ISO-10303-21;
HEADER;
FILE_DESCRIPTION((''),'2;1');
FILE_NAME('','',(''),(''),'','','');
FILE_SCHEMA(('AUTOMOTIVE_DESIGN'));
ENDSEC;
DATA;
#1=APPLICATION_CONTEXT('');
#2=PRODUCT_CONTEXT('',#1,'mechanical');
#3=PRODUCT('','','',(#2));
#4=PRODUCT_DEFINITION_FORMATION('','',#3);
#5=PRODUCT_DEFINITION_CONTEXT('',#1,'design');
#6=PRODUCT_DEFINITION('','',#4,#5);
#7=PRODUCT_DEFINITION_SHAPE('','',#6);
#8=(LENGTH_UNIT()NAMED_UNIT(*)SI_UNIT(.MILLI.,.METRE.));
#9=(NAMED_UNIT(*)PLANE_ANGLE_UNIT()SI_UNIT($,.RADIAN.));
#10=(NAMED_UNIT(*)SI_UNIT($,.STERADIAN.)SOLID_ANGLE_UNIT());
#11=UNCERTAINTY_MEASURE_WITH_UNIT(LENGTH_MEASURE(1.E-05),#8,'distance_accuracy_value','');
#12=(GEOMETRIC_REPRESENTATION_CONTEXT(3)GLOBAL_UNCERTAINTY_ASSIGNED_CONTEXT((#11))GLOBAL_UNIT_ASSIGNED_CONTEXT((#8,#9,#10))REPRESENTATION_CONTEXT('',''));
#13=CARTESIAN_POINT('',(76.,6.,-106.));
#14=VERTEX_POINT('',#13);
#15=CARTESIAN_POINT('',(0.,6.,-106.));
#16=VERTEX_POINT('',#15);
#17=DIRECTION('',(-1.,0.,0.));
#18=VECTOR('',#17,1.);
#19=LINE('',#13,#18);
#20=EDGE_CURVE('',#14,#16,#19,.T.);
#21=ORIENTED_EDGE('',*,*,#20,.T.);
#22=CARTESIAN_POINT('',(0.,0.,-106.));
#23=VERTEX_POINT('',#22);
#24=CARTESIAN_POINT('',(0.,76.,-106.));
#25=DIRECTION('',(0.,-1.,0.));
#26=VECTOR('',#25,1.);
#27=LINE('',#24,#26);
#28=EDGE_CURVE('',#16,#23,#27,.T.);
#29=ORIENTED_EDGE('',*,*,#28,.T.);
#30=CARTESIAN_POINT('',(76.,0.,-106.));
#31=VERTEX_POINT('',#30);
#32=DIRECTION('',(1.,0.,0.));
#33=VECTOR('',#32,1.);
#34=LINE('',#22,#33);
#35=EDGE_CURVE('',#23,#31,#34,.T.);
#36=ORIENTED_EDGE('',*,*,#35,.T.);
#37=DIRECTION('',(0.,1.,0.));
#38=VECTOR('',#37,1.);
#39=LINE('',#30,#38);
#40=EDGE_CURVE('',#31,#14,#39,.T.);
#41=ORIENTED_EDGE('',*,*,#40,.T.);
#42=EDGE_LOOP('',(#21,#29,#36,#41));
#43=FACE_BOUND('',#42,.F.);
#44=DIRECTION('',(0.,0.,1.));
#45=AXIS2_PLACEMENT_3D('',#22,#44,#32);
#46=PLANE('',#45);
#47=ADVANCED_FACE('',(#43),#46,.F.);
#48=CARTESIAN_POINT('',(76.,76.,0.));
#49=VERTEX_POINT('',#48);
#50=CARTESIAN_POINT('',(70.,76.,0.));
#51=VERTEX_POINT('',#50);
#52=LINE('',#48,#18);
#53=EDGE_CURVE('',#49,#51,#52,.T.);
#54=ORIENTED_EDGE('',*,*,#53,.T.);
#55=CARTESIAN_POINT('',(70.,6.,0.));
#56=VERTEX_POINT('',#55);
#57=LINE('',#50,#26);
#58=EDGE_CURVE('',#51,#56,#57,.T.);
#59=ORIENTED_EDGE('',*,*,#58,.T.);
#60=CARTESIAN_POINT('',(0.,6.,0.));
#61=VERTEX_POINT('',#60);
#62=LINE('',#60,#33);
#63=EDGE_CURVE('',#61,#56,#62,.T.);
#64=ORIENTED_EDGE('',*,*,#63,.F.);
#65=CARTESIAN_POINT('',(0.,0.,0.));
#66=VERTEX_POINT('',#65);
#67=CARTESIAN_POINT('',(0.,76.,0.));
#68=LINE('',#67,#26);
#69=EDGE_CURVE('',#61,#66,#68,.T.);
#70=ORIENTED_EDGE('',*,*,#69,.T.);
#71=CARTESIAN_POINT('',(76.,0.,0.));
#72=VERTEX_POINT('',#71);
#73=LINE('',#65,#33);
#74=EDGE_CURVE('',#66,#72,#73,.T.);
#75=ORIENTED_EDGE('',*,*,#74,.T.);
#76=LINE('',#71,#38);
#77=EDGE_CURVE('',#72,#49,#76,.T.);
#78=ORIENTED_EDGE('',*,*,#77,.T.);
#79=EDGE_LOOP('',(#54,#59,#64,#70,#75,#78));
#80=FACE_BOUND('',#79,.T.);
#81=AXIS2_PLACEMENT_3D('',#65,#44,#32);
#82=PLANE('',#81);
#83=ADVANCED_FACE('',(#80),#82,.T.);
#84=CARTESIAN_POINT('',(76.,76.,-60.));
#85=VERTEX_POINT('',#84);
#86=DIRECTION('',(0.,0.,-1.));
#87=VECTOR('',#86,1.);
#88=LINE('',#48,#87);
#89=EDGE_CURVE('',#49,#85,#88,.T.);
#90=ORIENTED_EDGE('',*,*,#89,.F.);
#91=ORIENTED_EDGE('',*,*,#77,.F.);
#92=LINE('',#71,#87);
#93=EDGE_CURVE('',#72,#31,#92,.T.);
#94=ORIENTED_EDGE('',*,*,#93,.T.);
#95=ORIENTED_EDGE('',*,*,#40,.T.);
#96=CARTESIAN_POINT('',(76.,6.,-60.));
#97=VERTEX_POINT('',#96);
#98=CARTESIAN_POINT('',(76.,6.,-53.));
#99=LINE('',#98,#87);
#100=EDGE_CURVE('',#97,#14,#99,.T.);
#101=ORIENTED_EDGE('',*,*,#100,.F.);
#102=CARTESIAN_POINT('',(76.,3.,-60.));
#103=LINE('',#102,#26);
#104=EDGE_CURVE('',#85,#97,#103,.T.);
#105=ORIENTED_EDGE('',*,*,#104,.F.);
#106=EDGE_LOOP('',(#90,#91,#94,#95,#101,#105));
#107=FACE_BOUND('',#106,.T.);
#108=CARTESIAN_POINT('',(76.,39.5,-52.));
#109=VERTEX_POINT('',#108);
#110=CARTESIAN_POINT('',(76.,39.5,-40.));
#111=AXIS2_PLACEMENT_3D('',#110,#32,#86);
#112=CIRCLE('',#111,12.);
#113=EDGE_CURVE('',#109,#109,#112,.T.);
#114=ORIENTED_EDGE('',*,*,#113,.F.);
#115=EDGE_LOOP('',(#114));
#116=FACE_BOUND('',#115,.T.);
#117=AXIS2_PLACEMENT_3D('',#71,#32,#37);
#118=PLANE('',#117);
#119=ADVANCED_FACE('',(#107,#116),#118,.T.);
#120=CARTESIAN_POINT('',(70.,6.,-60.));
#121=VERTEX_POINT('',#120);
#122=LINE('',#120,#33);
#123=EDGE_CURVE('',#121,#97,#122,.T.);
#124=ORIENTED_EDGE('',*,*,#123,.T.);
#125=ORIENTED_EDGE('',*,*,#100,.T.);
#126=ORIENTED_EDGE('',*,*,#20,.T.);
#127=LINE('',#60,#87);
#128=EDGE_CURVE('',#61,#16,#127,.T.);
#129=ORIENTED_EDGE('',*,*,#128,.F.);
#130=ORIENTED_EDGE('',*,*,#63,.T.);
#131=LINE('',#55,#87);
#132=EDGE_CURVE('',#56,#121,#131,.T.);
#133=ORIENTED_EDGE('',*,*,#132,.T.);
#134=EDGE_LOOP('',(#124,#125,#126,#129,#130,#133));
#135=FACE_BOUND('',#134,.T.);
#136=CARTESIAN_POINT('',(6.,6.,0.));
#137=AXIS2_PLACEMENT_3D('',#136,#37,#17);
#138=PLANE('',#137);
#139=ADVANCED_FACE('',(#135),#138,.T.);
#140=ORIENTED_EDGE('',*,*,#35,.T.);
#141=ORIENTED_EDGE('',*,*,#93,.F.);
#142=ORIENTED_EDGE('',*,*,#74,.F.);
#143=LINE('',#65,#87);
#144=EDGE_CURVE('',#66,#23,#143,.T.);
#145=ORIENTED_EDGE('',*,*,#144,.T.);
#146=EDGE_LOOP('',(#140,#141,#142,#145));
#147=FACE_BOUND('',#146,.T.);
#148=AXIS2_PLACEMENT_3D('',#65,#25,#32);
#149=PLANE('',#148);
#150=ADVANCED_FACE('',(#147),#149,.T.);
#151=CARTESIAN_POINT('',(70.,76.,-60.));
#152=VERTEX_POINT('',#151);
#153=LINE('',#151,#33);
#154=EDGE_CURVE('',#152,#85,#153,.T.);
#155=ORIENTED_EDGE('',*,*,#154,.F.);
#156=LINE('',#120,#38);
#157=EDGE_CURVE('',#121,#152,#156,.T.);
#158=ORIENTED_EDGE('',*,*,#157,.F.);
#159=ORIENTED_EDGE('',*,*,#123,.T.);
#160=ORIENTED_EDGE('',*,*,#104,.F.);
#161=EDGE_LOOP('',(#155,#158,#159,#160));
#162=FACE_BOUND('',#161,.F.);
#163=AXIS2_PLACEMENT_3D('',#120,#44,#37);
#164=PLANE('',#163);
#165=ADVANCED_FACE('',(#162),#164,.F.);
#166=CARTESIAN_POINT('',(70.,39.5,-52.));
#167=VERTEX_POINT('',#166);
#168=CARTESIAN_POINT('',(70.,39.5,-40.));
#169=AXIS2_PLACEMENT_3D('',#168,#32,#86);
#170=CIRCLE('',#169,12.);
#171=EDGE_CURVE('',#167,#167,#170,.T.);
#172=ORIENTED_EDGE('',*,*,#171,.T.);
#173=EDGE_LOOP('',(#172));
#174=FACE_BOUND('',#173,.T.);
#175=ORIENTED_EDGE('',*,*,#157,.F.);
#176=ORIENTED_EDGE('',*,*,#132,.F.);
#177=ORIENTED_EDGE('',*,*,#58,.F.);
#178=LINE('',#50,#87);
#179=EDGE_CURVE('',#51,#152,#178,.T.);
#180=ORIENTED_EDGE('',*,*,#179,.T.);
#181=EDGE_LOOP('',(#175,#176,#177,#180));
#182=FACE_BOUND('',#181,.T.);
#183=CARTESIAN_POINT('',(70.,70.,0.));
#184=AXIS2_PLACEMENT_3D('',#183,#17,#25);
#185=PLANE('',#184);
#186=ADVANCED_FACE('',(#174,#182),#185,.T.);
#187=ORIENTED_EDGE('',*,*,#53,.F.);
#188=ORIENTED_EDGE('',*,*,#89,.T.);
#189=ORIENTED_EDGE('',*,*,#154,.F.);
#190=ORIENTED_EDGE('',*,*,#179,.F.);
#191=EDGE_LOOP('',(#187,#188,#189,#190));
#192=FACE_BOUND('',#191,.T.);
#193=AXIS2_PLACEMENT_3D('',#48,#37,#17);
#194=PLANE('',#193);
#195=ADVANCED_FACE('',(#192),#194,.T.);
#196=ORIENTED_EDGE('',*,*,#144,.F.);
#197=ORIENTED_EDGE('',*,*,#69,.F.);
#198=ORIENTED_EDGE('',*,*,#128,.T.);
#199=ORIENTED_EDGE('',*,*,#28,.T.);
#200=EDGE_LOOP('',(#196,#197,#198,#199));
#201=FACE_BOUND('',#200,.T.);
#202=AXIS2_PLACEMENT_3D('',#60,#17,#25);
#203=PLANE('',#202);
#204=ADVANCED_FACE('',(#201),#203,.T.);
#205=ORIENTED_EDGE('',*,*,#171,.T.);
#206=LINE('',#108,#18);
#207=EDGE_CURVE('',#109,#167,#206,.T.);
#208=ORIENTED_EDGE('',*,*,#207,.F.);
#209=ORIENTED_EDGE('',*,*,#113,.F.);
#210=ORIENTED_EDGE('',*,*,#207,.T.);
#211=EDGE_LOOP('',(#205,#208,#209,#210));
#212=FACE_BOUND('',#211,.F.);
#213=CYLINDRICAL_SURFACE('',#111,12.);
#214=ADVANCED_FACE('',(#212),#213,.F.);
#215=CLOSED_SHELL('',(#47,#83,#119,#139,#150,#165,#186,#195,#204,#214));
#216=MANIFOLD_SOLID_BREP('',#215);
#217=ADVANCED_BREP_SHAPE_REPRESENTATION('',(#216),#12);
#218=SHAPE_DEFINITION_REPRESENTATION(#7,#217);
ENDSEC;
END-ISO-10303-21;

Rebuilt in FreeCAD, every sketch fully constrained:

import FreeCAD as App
import Part
import Sketcher

V = App.Vector
Q = App.Units.Quantity

doc = App.newDocument("Part")
body = doc.addObject("PartDesign::Body", "Body")

sketch1 = body.newObject("Sketcher::SketchObject", "Sketch")
sketch1.AttachmentSupport = (doc.getObject("XY_Plane"), [""])
sketch1.MapMode = "FlatFace"
sketch1.addGeometry([
    Part.LineSegment(V(0, 6, 0), V(0, 0, 0)),
    Part.LineSegment(V(0, 0, 0), V(76, 0, 0)),
    Part.LineSegment(V(76, 0, 0), V(76, 76, 0)),
    Part.LineSegment(V(76, 76, 0), V(70, 76, 0)),
    Part.LineSegment(V(70, 76, 0), V(70, 6, 0)),
    Part.LineSegment(V(70, 6, 0), V(0, 6, 0)),
], False)
sketch1.addConstraint([
    Sketcher.Constraint("Coincident", 0, 2, 1, 1),
    Sketcher.Constraint("Coincident", 1, 2, 2, 1),
    Sketcher.Constraint("Coincident", 2, 2, 3, 1),
    Sketcher.Constraint("Coincident", 3, 2, 4, 1),
    Sketcher.Constraint("Coincident", 4, 2, 5, 1),
    Sketcher.Constraint("Coincident", 5, 2, 0, 1),
    Sketcher.Constraint("Vertical", 0),
    Sketcher.Constraint("Horizontal", 1),
    Sketcher.Constraint("Vertical", 2),
    Sketcher.Constraint("Horizontal", 3),
    Sketcher.Constraint("Vertical", 4),
    Sketcher.Constraint("Horizontal", 5),
    Sketcher.Constraint("Coincident", 0, 2, -1, 1),
    Sketcher.Constraint("Equal", 3, 0),
    Sketcher.Constraint("Equal", 1, 2),
    Sketcher.Constraint("DistanceX", 1, 1, 1, 2, Q("76 mm")),
    Sketcher.Constraint("DistanceX", 3, 2, 3, 1, Q("6 mm")),
])
pad1 = body.newObject("PartDesign::Pad", "Pad")
pad1.Profile = sketch1
pad1.Length = 106
pad1.Reversed = True

sketch2 = body.newObject("Sketcher::SketchObject", "Sketch001")
sketch2.AttachmentSupport = (doc.getObject("YZ_Plane"), [""])
sketch2.MapMode = "FlatFace"
sketch2.AttachmentOffset = App.Placement(V(0, 0, 76), App.Rotation())
sketch2.addGeometry(Part.Circle(V(40, -40, 0), V(0, 0, 1), 12), False)
sketch2.addConstraint([
    Sketcher.Constraint("Diameter", 0, Q("24 mm")),
    Sketcher.Constraint("DistanceY", 0, 3, -1, 1, Q("40 mm")),
    Sketcher.Constraint("DistanceX", -1, 1, 0, 3, Q("39.5 mm")),
])
pocket1 = body.newObject("PartDesign::Pocket", "Pocket")
pocket1.Profile = sketch2
pocket1.Length = 76

sketch3 = body.newObject("Sketcher::SketchObject", "Sketch002")
sketch3.AttachmentSupport = (doc.getObject("YZ_Plane"), [""])
sketch3.MapMode = "FlatFace"
sketch3.AttachmentOffset = App.Placement(V(0, 0, 70), App.Rotation())
sketch3.addGeometry([
    Part.LineSegment(V(76, -106, 0), V(6, -106, 0)),
    Part.LineSegment(V(6, -106, 0), V(6, -60, 0)),
    Part.LineSegment(V(6, -60, 0), V(76, -60, 0)),
    Part.LineSegment(V(76, -60, 0), V(76, -106, 0)),
], False)
sketch3.addConstraint([
    Sketcher.Constraint("Coincident", 0, 2, 1, 1),
    Sketcher.Constraint("Coincident", 1, 2, 2, 1),
    Sketcher.Constraint("Coincident", 2, 2, 3, 1),
    Sketcher.Constraint("Coincident", 3, 2, 0, 1),
    Sketcher.Constraint("Horizontal", 0),
    Sketcher.Constraint("Vertical", 1),
    Sketcher.Constraint("Horizontal", 2),
    Sketcher.Constraint("Vertical", 3),
    Sketcher.Constraint("DistanceY", 1, 2, -1, 1, Q("60 mm")),
    Sketcher.Constraint("DistanceX", 0, 2, 0, 1, Q("70 mm")),
    Sketcher.Constraint("DistanceY", 1, 1, 1, 2, Q("46 mm")),
    Sketcher.Constraint("DistanceX", -1, 1, 0, 2, Q("6 mm")),
])
pocket2 = body.newObject("PartDesign::Pocket", "Pocket001")
pocket2.Profile = sketch3
pocket2.Length = 10
pocket2.Reversed = True

doc.recompute()
